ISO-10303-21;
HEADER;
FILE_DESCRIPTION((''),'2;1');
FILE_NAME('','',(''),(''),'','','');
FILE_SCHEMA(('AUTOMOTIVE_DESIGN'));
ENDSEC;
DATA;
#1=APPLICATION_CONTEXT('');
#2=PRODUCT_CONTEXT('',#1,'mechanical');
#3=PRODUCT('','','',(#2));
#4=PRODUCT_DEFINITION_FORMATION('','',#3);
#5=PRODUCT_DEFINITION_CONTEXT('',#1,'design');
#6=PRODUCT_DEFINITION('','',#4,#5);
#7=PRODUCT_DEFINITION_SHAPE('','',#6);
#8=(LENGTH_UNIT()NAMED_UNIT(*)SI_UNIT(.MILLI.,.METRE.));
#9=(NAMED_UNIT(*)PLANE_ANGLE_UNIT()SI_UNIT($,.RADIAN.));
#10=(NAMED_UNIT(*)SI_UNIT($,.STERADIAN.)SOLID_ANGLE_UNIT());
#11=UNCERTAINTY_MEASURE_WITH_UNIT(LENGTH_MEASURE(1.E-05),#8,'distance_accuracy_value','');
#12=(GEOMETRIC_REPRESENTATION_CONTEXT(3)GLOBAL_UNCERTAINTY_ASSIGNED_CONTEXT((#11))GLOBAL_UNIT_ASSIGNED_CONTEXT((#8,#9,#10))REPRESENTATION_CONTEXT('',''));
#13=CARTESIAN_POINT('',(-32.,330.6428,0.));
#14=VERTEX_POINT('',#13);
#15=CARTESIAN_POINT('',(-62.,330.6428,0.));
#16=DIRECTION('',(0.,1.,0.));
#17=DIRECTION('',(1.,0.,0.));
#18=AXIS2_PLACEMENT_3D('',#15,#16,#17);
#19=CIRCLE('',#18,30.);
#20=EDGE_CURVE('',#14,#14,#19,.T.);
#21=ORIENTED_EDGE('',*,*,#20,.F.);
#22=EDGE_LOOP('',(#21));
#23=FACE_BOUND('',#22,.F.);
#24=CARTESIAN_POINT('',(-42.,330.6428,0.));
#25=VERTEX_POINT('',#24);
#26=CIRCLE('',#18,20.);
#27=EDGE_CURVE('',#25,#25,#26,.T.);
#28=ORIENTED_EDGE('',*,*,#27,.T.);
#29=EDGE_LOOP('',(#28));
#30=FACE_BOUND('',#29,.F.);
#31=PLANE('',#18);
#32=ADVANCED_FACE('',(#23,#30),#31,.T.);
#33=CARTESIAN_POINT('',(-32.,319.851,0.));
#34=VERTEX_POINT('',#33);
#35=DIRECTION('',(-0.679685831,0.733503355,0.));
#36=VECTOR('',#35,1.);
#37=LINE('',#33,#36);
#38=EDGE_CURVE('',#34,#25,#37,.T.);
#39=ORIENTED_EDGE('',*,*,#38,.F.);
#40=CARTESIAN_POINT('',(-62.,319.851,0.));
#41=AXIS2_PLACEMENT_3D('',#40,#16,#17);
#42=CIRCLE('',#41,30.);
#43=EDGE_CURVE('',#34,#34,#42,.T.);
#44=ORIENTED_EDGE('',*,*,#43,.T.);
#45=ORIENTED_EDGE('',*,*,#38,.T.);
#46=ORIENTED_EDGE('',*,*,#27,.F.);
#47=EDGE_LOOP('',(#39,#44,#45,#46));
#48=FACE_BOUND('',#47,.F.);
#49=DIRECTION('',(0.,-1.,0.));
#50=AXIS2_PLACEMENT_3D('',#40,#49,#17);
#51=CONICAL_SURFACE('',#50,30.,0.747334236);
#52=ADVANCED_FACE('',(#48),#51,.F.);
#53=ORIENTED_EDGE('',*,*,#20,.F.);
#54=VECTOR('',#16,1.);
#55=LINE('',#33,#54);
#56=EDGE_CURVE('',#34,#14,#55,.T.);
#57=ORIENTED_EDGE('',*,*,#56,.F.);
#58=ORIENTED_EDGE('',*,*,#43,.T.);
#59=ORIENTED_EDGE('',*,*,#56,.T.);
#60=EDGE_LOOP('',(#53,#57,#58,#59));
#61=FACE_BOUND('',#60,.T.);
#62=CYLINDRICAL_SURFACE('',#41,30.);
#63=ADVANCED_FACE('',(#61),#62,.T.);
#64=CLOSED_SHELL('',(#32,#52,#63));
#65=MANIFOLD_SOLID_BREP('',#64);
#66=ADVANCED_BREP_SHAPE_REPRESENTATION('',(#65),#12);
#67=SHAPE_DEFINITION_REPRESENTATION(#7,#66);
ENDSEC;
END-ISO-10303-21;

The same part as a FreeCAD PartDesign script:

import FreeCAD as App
import Part
import Sketcher
from FreeCAD import Vector
Q = App.Units.Quantity

doc = App.newDocument("Part")
body = doc.addObject("PartDesign::Body", "Body")

# Sketch on XY plane
sketch1 = body.newObject("Sketcher::SketchObject", "Sketch")
sketch1.AttachmentSupport = (doc.getObject("XY_Plane"), [""])
sketch1.MapMode = "FlatFace"
sketch1.addGeometry([
    Part.LineSegment(Vector(-32, 331, 0), Vector(-42, 331, 0)),
    Part.LineSegment(Vector(-42, 331, 0), Vector(-32, 320, 0)),
    Part.LineSegment(Vector(-32, 320, 0), Vector(-32, 331, 0)),
], False)
sketch1.addGeometry(Part.LineSegment(Vector(-62, 320, 0), Vector(-62, 331, 0)), True)  # axis
sketch1.addConstraint([
    Sketcher.Constraint("Coincident", 0, 2, 1, 1),
    Sketcher.Constraint("Coincident", 1, 2, 2, 1),
    Sketcher.Constraint("Coincident", 2, 2, 0, 1),
    Sketcher.Constraint("Horizontal", 0),
    Sketcher.Constraint("Vertical", 2),
    Sketcher.Constraint("Vertical", 3),
    Sketcher.Constraint("Horizontal", 1, 2, 3, 1),
    Sketcher.Constraint("Horizontal", 2, 2, 3, 2),
    Sketcher.Constraint("DistanceX", 0, 2, 0, 1, Q("10 mm")),
    Sketcher.Constraint("DistanceX", 0, 2, -1, 1, Q("42 mm")),
    Sketcher.Constraint("DistanceX", 3, 1, -1, 1, Q("62 mm")),
    Sketcher.Constraint("Angle", 1, Q("-47.181 deg")),
    Sketcher.Constraint("DistanceY", -1, 1, 1, 2, Q("319.851 mm")),
])
revolution = body.newObject("PartDesign::Revolution", "Revolution")
revolution.Profile = sketch1
revolution.ReferenceAxis = (sketch1, ["Axis0"])
revolution.Angle = 360

doc.recompute()
